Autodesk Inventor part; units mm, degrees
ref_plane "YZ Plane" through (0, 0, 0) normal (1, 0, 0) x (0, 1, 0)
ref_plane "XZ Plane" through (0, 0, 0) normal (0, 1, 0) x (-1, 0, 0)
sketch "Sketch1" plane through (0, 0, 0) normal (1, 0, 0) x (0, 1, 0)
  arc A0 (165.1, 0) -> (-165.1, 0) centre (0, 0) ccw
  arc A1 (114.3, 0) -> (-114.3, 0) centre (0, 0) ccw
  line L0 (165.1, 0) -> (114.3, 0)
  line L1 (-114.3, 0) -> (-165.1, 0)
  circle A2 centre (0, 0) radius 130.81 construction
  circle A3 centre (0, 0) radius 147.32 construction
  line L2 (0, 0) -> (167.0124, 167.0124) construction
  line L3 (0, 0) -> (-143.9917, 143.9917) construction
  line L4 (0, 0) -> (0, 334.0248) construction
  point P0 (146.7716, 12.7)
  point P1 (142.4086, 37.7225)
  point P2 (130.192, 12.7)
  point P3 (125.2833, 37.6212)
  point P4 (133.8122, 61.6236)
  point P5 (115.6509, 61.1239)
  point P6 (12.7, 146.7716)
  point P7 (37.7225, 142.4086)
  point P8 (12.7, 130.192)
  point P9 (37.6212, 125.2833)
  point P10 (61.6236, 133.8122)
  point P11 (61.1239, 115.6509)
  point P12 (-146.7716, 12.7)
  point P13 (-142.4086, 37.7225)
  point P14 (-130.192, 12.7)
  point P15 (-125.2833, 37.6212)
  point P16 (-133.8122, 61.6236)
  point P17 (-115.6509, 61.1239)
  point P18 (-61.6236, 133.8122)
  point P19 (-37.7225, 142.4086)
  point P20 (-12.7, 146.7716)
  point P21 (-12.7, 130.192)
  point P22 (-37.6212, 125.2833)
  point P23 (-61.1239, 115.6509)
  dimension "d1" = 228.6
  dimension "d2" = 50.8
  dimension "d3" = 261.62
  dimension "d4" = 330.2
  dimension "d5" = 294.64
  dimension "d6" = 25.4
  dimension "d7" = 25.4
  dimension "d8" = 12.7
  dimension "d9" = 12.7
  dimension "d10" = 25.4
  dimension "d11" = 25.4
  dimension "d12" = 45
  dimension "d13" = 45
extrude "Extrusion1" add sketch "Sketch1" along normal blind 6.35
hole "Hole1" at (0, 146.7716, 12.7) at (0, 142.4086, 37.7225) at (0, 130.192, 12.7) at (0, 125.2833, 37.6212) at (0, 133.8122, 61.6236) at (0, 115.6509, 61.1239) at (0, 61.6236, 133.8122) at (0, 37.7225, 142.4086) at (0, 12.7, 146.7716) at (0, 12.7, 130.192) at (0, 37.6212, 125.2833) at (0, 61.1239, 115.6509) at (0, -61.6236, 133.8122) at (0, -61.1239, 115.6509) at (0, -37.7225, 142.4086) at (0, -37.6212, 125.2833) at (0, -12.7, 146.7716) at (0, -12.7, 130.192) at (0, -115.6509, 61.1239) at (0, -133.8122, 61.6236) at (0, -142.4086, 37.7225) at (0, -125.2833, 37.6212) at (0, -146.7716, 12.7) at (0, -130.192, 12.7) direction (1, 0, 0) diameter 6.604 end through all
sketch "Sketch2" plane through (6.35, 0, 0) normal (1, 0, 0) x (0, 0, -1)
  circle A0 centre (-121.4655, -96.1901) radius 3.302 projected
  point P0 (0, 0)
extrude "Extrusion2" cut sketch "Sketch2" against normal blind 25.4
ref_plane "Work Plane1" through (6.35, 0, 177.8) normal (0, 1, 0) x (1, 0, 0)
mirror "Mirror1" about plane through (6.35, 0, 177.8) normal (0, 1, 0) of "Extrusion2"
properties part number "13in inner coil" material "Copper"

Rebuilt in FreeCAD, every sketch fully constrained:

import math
import FreeCAD as App
import Part
import Sketcher
Q = App.Units.Quantity

doc = App.newDocument("Part")
body = doc.addObject("PartDesign::Body", "Body")

sketch1 = body.newObject("Sketcher::SketchObject", "Sketch")
sketch1.AttachmentSupport = (doc.getObject("YZ_Plane"), [""])
sketch1.MapMode = "FlatFace"
sketch1.addGeometry(Part.LineSegment(App.Vector(114.3, 0, 0), App.Vector(165.1, 0, 0)), False)
sketch1.addGeometry(Part.ArcOfCircle(Part.Circle(App.Vector(0, 0, 0), App.Vector(0, 0, 1), 165.1), math.radians(0), math.radians(180)), False)
sketch1.addGeometry(Part.LineSegment(App.Vector(-165.1, 0, 0), App.Vector(-114.3, 0, 0)), False)
sketch1.addGeometry(Part.ArcOfCircle(Part.Circle(App.Vector(0, 0, 0), App.Vector(0, 0, 1), 114.3), math.radians(0), math.radians(180)), False)
sketch1.addConstraint(Sketcher.Constraint("Coincident", 0, 2, 1, 1))
sketch1.addConstraint(Sketcher.Constraint("Coincident", 1, 2, 2, 1))
sketch1.addConstraint(Sketcher.Constraint("Coincident", 2, 2, 3, 2))
sketch1.addConstraint(Sketcher.Constraint("Coincident", 3, 1, 0, 1))
sketch1.addConstraint(Sketcher.Constraint("Horizontal", 0))
sketch1.addConstraint(Sketcher.Constraint("Horizontal", 2))
sketch1.addConstraint(Sketcher.Constraint("Coincident", 1, 3, -1, 1))
sketch1.addConstraint(Sketcher.Constraint("Coincident", 3, 3, -1, 1))
sketch1.addConstraint(Sketcher.Constraint("PointOnObject", 0, 2, -1))
sketch1.addConstraint(Sketcher.Constraint("PointOnObject", 1, 2, -1))
sketch1.addConstraint(Sketcher.Constraint("Radius", 1, Q("6.5 in")))
sketch1.addConstraint(Sketcher.Constraint("Radius", 3, Q("4.5 in")))
pad1 = body.newObject("PartDesign::Pad", "Pad")
pad1.Profile = sketch1
pad1.Length = Q("0.25 in")

sketch2 = body.newObject("Sketcher::SketchObject", "Sketch001")
sketch2.AttachmentSupport = (doc.getObject("YZ_Plane"), [""])
sketch2.MapMode = "FlatFace"
sketch2.addGeometry(Part.Circle(App.Vector(146.7716, 12.7, 0), App.Vector(0, 0, 1), 3.302), False)
sketch2.addGeometry(Part.Circle(App.Vector(142.4086, 37.7225, 0), App.Vector(0, 0, 1), 3.302), False)
sketch2.addGeometry(Part.Circle(App.Vector(130.192, 12.7, 0), App.Vector(0, 0, 1), 3.302), False)
sketch2.addGeometry(Part.Circle(App.Vector(125.2833, 37.6212, 0), App.Vector(0, 0, 1), 3.302), False)
sketch2.addGeometry(Part.Circle(App.Vector(133.8122, 61.6236, 0), App.Vector(0, 0, 1), 3.302), False)
sketch2.addGeometry(Part.Circle(App.Vector(115.6509, 61.1239, 0), App.Vector(0, 0, 1), 3.302), False)
sketch2.addGeometry(Part.Circle(App.Vector(61.6236, 133.8122, 0), App.Vector(0, 0, 1), 3.302), False)
sketch2.addGeometry(Part.Circle(App.Vector(37.7225, 142.4086, 0), App.Vector(0, 0, 1), 3.302), False)
sketch2.addGeometry(Part.Circle(App.Vector(12.7, 146.7716, 0), App.Vector(0, 0, 1), 3.302), False)
sketch2.addGeometry(Part.Circle(App.Vector(12.7, 130.192, 0), App.Vector(0, 0, 1), 3.302), False)
sketch2.addGeometry(Part.Circle(App.Vector(37.6212, 125.2833, 0), App.Vector(0, 0, 1), 3.302), False)
sketch2.addGeometry(Part.Circle(App.Vector(61.1239, 115.6509, 0), App.Vector(0, 0, 1), 3.302), False)
sketch2.addGeometry(Part.Circle(App.Vector(-61.6236, 133.8122, 0), App.Vector(0, 0, 1), 3.302), False)
sketch2.addGeometry(Part.Circle(App.Vector(-61.1239, 115.6509, 0), App.Vector(0, 0, 1), 3.302), False)
sketch2.addGeometry(Part.Circle(App.Vector(-37.7225, 142.4086, 0), App.Vector(0, 0, 1), 3.302), False)
sketch2.addGeometry(Part.Circle(App.Vector(-37.6212, 125.2833, 0), App.Vector(0, 0, 1), 3.302), False)
sketch2.addGeometry(Part.Circle(App.Vector(-12.7, 146.7716, 0), App.Vector(0, 0, 1), 3.302), False)
sketch2.addGeometry(Part.Circle(App.Vector(-12.7, 130.192, 0), App.Vector(0, 0, 1), 3.302), False)
sketch2.addGeometry(Part.Circle(App.Vector(-115.6509, 61.1239, 0), App.Vector(0, 0, 1), 3.302), False)
sketch2.addGeometry(Part.Circle(App.Vector(-133.8122, 61.6236, 0), App.Vector(0, 0, 1), 3.302), False)
sketch2.addGeometry(Part.Circle(App.Vector(-142.4086, 37.7225, 0), App.Vector(0, 0, 1), 3.302), False)
sketch2.addGeometry(Part.Circle(App.Vector(-125.2833, 37.6212, 0), App.Vector(0, 0, 1), 3.302), False)
sketch2.addGeometry(Part.Circle(App.Vector(-146.7716, 12.7, 0), App.Vector(0, 0, 1), 3.302), False)
sketch2.addGeometry(Part.Circle(App.Vector(-130.192, 12.7, 0), App.Vector(0, 0, 1), 3.302), False)
sketch2.addConstraint(Sketcher.Constraint("Equal", 0, 1))
sketch2.addConstraint(Sketcher.Constraint("Equal", 1, 2))
sketch2.addConstraint(Sketcher.Constraint("Equal", 2, 3))
sketch2.addConstraint(Sketcher.Constraint("Equal", 3, 4))
sketch2.addConstraint(Sketcher.Constraint("Equal", 4, 5))
sketch2.addConstraint(Sketcher.Constraint("Equal", 5, 6))
sketch2.addConstraint(Sketcher.Constraint("Equal", 6, 7))
sketch2.addConstraint(Sketcher.Constraint("Equal", 7, 8))
sketch2.addConstraint(Sketcher.Constraint("Equal", 8, 9))
sketch2.addConstraint(Sketcher.Constraint("Equal", 9, 10))
sketch2.addConstraint(Sketcher.Constraint("Equal", 10, 11))
sketch2.addConstraint(Sketcher.Constraint("Equal", 11, 12))
sketch2.addConstraint(Sketcher.Constraint("Equal", 12, 13))
sketch2.addConstraint(Sketcher.Constraint("Equal", 13, 14))
sketch2.addConstraint(Sketcher.Constraint("Equal", 14, 15))
sketch2.addConstraint(Sketcher.Constraint("Equal", 15, 16))
sketch2.addConstraint(Sketcher.Constraint("Equal", 16, 17))
sketch2.addConstraint(Sketcher.Constraint("Equal", 17, 18))
sketch2.addConstraint(Sketcher.Constraint("Equal", 18, 19))
sketch2.addConstraint(Sketcher.Constraint("Equal", 19, 20))
sketch2.addConstraint(Sketcher.Constraint("Equal", 20, 21))
sketch2.addConstraint(Sketcher.Constraint("Equal", 21, 22))
sketch2.addConstraint(Sketcher.Constraint("Equal", 22, 23))
sketch2.addConstraint(Sketcher.Constraint("Symmetric", 6, 3, 12, 3, -2))
sketch2.addConstraint(Sketcher.Constraint("Symmetric", 11, 3, 13, 3, -2))
sketch2.addConstraint(Sketcher.Constraint("Symmetric", 7, 3, 14, 3, -2))
sketch2.addConstraint(Sketcher.Constraint("Symmetric", 10, 3, 15, 3, -2))
sketch2.addConstraint(Sketcher.Constraint("Symmetric", 8, 3, 16, 3, -2))
sketch2.addConstraint(Sketcher.Constraint("Symmetric", 9, 3, 17, 3, -2))
sketch2.addConstraint(Sketcher.Constraint("Symmetric", 5, 3, 18, 3, -2))
sketch2.addConstraint(Sketcher.Constraint("Symmetric", 4, 3, 19, 3, -2))
sketch2.addConstraint(Sketcher.Constraint("Symmetric", 1, 3, 20, 3, -2))
sketch2.addConstraint(Sketcher.Constraint("Symmetric", 3, 3, 21, 3, -2))
sketch2.addConstraint(Sketcher.Constraint("Symmetric", 0, 3, 22, 3, -2))
sketch2.addConstraint(Sketcher.Constraint("Symmetric", 2, 3, 23, 3, -2))
sketch2.addConstraint(Sketcher.Constraint("Horizontal", 0, 3, 2, 3))
sketch2.addConstraint(Sketcher.Constraint("Vertical", 8, 3, 9, 3))
sketch2.addConstraint(Sketcher.Constraint("Diameter", 0, Q("0.26 in")))
sketch2.addConstraint(Sketcher.Constraint("DistanceX", 16, 3, 8, 3, Q("1 in")))
sketch2.addConstraint(Sketcher.Constraint("DistanceY", -1, 1, 0, 3, Q("0.5 in")))
sketch2.addConstraint(Sketcher.Constraint("DistanceY", 3, 3, 1, 3, Q("0.004 in")))
sketch2.addConstraint(Sketcher.Constraint("DistanceX", 3, 3, 0, 3, Q("0.846 in")))
sketch2.addConstraint(Sketcher.Constraint("DistanceY", 1, 3, 4, 3, Q("0.941 in")))
sketch2.addConstraint(Sketcher.Constraint("DistanceX", 5, 3, 4, 3, Q("0.715 in")))
sketch2.addConstraint(Sketcher.Constraint("DistanceX", 7, 3, 6, 3, Q("0.941 in")))
sketch2.addConstraint(Sketcher.Constraint("DistanceX", 10, 3, 7, 3, Q("0.004 in")))
sketch2.addConstraint(Sketcher.Constraint("DistanceY", 10, 3, 8, 3, Q("0.846 in")))
sketch2.addConstraint(Sketcher.Constraint("DistanceY", 11, 3, 6, 3, Q("0.715 in")))
sketch2.addConstraint(Sketcher.Constraint("DistanceX", -1, 1, 0, 3, Q("5.7784 in")))
sketch2.addConstraint(Sketcher.Constraint("DistanceX", -1, 1, 4, 3, Q("5.2682 in")))
sketch2.addConstraint(Sketcher.Constraint("DistanceY", -1, 1, 6, 3, Q("5.2682 in")))
sketch2.addConstraint(Sketcher.Constraint("DistanceY", -1, 1, 8, 3, Q("5.7784 in")))
sketch2.addConstraint(Sketcher.Constraint("DistanceY", 3, 3, 5, 3, Q("0.9253 in")))
sketch2.addConstraint(Sketcher.Constraint("DistanceX", 6, 3, 1, 3, Q("3.1805 in")))
sketch2.addConstraint(Sketcher.Constraint("DistanceY", 4, 3, 7, 3, Q("3.1805 in")))
sketch2.addConstraint(Sketcher.Constraint("DistanceX", 10, 3, 11, 3, Q("0.9253 in")))
sketch2.addConstraint(Sketcher.Constraint("DistanceX", 13, 3, 10, 3, Q("3.8876 in")))
sketch2.addConstraint(Sketcher.Constraint("DistanceY", -1, 1, 1, 3, 37.7225))
sketch2.addConstraint(Sketcher.Constraint("DistanceX", -1, 1, 2, 3, 130.192))
sketch2.addConstraint(Sketcher.Constraint("DistanceY", -1, 1, 9, 3, 130.192))
doc.recompute()
hole = body.newObject("PartDesign::Hole", "Hole")
hole.Profile = sketch2
hole.ThreadType = "None"
hole.Diameter = Q("0.26 in")
hole.DepthType = "ThroughAll"
hole.Reversed = True

sketch3 = body.newObject("Sketcher::SketchObject", "Sketch002")
sketch3.AttachmentSupport = (doc.getObject("YZ_Plane"), [""])
sketch3.MapMode = "FlatFace"
sketch3.AttachmentOffset = App.Placement(App.Vector(0, 0, 0.25 * 25.4), App.Rotation())
sketch3.addGeometry(Part.Circle(App.Vector(-96.1901, 121.4655, 0), App.Vector(0, 0, 1), 3.302), False)
sketch3.addConstraint(Sketcher.Constraint("Diameter", 0, Q("0.26 in")))
sketch3.addConstraint(Sketcher.Constraint("DistanceX", 0, 3, -1, 1, Q("3.787 in")))
sketch3.addConstraint(Sketcher.Constraint("DistanceY", -1, 1, 0, 3, Q("4.7821 in")))
pocket1 = body.newObject("PartDesign::Pocket", "Pocket")
pocket1.Profile = sketch3
pocket1.Length = Q("1 in")
doc.recompute()

mirrored = body.newObject("PartDesign::Mirrored", "Mirrored")
mirrored.Originals = [pocket1]
mirrored.MirrorPlane = (doc.getObject("XZ_Plane"), [""])
body.Tip = mirrored

doc.recompute()
